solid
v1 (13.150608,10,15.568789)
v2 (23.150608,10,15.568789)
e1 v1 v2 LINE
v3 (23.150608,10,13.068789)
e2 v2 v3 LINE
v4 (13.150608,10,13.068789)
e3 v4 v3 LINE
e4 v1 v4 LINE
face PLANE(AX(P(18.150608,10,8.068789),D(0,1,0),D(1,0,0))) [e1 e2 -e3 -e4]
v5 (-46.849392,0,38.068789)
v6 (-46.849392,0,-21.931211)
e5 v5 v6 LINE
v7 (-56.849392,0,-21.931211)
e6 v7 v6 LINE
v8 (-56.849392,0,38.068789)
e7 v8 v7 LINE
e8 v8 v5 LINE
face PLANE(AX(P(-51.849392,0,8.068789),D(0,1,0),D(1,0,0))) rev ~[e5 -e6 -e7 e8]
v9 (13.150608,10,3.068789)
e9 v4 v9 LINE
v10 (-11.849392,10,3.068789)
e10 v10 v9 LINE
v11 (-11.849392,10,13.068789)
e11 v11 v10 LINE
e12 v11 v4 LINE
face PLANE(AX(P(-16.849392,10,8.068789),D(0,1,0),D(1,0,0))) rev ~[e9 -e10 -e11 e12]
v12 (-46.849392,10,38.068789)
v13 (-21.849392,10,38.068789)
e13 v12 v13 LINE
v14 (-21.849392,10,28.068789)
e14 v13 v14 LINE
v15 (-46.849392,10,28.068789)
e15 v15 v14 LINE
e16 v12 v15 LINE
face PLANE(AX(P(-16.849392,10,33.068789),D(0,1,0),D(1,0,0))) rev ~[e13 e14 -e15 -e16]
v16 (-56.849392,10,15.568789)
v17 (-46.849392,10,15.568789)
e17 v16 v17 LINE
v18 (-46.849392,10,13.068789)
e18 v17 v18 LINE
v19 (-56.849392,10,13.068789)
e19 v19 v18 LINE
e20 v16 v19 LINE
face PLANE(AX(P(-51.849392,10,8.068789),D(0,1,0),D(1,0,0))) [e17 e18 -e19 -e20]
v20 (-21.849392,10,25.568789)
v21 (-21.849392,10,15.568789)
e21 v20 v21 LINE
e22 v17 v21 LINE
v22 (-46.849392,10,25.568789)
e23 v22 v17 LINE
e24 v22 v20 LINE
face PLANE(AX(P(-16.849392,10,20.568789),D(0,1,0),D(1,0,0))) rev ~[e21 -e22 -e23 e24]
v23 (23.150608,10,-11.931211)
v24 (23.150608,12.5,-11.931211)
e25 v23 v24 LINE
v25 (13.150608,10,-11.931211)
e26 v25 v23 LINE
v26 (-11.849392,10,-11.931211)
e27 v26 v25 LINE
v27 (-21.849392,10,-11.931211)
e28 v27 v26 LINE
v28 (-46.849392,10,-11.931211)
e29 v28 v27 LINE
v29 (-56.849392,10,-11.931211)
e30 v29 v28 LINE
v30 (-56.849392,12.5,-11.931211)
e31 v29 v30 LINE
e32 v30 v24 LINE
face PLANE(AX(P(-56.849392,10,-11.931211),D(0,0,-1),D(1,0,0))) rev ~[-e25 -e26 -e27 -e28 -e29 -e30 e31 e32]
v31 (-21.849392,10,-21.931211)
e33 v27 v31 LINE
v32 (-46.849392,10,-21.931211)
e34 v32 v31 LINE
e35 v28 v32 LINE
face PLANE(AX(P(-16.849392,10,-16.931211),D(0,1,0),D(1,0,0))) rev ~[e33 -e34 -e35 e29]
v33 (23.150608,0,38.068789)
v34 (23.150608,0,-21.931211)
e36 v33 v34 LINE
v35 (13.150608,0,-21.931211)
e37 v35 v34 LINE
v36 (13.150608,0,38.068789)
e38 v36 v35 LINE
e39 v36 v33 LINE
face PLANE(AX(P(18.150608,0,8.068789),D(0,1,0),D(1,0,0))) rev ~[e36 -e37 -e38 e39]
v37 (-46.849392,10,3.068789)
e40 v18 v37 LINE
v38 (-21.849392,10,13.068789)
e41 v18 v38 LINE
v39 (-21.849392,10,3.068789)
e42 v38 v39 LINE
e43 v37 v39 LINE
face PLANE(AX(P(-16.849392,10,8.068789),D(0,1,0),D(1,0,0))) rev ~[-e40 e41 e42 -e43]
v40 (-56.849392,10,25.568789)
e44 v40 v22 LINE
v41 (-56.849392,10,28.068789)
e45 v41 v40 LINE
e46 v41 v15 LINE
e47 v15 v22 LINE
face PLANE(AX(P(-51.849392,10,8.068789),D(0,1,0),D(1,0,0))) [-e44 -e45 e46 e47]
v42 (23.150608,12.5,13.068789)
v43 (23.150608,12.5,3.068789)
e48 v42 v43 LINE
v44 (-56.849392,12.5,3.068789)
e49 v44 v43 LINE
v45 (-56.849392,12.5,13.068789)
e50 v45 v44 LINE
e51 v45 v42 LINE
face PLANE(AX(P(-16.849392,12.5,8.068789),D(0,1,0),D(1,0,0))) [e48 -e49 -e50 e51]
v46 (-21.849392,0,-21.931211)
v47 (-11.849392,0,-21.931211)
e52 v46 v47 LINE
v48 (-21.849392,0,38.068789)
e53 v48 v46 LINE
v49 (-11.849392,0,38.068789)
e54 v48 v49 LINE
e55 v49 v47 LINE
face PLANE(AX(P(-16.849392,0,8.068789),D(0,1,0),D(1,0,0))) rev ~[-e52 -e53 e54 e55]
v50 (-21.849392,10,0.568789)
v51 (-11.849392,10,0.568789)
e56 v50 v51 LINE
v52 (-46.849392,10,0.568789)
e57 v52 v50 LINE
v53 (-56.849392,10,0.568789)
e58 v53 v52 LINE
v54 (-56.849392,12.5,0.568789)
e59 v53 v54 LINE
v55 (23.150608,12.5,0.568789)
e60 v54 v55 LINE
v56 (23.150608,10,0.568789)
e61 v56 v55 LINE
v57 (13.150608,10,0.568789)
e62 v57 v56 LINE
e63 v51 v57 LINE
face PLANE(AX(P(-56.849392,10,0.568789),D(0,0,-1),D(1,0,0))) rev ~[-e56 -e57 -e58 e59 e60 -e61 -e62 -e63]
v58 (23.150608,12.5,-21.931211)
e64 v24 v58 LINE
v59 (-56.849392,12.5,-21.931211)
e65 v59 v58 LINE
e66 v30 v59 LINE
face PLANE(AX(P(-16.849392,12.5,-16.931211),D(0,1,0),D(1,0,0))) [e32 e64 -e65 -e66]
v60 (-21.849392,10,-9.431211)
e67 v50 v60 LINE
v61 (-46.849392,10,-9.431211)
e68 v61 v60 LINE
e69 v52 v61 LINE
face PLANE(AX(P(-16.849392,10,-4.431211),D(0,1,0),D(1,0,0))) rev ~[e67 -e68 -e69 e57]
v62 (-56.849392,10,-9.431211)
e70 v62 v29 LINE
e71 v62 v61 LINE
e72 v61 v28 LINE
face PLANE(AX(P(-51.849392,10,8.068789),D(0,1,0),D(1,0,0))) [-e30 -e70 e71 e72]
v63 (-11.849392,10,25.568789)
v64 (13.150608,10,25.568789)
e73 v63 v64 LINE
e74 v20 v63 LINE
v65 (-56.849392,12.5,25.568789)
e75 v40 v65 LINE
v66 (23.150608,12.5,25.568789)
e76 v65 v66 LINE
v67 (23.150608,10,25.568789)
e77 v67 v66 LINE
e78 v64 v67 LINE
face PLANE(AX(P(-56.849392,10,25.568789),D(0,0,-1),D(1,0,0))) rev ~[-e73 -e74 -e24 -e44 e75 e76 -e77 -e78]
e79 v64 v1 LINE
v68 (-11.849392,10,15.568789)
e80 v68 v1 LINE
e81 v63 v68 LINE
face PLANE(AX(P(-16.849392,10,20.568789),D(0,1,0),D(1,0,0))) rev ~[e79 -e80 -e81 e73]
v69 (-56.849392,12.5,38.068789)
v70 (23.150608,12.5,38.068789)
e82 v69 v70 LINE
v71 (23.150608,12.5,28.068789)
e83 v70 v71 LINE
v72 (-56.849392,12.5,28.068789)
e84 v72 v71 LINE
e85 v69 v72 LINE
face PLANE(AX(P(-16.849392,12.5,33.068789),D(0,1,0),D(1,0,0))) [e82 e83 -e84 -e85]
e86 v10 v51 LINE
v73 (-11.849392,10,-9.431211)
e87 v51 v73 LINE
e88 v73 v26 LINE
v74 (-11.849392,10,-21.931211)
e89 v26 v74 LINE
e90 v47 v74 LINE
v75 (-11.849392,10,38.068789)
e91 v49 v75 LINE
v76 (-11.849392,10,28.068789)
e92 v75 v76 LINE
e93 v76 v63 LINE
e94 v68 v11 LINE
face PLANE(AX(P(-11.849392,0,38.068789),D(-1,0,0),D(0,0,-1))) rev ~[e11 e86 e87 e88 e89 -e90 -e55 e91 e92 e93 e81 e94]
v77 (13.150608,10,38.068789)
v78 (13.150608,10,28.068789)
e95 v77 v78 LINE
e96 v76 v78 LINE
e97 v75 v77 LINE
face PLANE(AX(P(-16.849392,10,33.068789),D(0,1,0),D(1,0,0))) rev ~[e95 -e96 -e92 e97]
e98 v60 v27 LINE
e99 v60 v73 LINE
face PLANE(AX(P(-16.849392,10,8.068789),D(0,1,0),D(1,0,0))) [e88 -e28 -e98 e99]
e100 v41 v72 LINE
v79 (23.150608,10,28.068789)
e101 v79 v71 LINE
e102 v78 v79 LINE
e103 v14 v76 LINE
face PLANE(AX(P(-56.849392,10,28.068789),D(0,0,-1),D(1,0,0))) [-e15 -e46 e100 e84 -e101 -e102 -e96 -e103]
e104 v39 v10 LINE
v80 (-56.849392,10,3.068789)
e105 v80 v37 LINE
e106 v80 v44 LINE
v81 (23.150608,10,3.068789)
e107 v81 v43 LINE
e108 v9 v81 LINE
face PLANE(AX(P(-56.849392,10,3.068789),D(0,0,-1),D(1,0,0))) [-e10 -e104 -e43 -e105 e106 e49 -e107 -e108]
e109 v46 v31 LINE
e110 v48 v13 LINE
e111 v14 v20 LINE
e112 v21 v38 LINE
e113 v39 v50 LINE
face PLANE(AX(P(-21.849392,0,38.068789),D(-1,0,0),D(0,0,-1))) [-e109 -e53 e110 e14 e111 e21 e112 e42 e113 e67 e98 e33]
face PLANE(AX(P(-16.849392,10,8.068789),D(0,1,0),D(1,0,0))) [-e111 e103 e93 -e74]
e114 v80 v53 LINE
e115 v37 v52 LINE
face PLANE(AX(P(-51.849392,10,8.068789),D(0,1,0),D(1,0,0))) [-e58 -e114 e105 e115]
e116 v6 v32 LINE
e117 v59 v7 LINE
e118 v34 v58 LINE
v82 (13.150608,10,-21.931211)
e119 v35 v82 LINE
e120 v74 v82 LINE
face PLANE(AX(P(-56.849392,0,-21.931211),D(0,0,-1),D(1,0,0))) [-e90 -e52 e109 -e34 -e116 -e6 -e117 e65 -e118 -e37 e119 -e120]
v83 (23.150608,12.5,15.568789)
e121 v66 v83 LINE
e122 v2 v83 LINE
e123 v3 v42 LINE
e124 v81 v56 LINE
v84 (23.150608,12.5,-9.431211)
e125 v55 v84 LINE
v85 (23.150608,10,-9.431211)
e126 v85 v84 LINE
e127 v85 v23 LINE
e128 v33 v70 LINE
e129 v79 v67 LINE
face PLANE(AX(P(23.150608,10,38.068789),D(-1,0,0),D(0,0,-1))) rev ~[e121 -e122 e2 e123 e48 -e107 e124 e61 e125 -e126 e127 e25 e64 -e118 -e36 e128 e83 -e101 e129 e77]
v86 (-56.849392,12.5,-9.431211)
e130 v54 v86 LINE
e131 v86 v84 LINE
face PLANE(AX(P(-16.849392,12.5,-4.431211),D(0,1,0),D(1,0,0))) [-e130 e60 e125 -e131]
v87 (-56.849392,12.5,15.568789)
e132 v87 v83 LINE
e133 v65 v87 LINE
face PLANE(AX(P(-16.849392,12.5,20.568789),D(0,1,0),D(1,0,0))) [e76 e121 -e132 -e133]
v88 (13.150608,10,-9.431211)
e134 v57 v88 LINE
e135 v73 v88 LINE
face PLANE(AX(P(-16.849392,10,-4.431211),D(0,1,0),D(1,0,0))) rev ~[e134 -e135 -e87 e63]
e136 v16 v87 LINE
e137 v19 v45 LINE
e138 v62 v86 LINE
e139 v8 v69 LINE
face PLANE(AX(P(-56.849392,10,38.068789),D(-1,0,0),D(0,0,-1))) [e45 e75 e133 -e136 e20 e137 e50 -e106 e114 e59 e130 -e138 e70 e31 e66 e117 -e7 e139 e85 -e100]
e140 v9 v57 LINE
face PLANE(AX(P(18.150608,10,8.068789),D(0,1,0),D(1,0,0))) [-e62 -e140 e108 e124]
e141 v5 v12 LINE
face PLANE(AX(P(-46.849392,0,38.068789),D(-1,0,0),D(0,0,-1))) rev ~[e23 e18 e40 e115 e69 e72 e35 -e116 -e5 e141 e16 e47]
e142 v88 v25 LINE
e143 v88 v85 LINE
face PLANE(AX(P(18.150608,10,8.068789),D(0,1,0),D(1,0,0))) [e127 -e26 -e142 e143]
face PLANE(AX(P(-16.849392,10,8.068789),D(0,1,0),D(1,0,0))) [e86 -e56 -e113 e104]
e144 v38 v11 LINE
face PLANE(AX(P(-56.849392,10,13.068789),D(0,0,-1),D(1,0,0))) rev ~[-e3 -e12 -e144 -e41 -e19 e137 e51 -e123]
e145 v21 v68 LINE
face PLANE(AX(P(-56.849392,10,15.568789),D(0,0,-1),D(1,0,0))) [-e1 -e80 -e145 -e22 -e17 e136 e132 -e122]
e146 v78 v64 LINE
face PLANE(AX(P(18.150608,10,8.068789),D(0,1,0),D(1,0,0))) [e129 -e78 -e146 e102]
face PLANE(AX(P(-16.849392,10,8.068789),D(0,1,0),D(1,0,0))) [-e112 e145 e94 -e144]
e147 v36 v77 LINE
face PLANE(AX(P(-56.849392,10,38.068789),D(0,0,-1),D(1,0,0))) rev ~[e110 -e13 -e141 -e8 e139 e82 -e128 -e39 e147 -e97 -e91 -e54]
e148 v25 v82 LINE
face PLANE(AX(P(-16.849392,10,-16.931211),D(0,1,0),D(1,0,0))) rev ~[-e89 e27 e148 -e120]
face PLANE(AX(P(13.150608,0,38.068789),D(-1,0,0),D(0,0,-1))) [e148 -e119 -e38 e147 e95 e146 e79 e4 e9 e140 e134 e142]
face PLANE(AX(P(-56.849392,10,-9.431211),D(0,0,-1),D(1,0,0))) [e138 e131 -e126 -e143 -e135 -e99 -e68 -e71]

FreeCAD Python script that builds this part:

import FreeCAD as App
import Part
import Sketcher
Q = App.Units.Quantity


def add_polygon(sketch, points):
    """Adds a closed chain of lines whose ends are joined by coincident constraints."""
    first, n = sketch.GeometryCount, len(points)
    for a, b in zip(points, points[1:] + points[:1]):
        sketch.addGeometry(Part.LineSegment(App.Vector(*a, 0), App.Vector(*b, 0)), False)
    for i in range(n):
        sketch.addConstraint(Sketcher.Constraint("Coincident", first + i, 2, first + (i + 1) % n, 1))

doc = App.newDocument("Part")
body = doc.addObject("PartDesign::Body", "Body")

sketch1 = body.newObject("Sketcher::SketchObject", "Sketch")
sketch1.AttachmentSupport = (doc.getObject("XZ_Plane"), [""])
sketch1.MapMode = "FlatFace"
add_polygon(sketch1, [(-57, -22), (-57, 38), (-47, 38), (-47, -22)])
sketch1.addConstraint([
    Sketcher.Constraint("Vertical", 0),
    Sketcher.Constraint("Horizontal", 1),
    Sketcher.Constraint("Vertical", 2),
    Sketcher.Constraint("Horizontal", 3),
    Sketcher.Constraint("DistanceX", 1, 1, 1, 2, Q("10 mm")),
    Sketcher.Constraint("DistanceY", 0, 1, 0, 2, Q("60 mm")),
    Sketcher.Constraint("DistanceX", 0, 2, -1, 1, Q("56.849392 mm")),
    Sketcher.Constraint("DistanceY", -1, 1, 0, 2, Q("38.068789 mm")),
])
pad1 = body.newObject("PartDesign::Pad", "Pad")
pad1.Profile = sketch1
pad1.Length = 10
pad1.Reversed = True
body2 = doc.addObject("PartDesign::Body", "Body001")

sketch2 = body2.newObject("Sketcher::SketchObject", "Sketch001")
sketch2.AttachmentSupport = (doc.getObject("XZ_Plane001"), [""])
sketch2.MapMode = "FlatFace"
add_polygon(sketch2, [(-22, -22), (-22, 38), (-12, 38), (-12, -22)])
sketch2.addConstraint([
    Sketcher.Constraint("Vertical", 0),
    Sketcher.Constraint("Horizontal", 1),
    Sketcher.Constraint("Vertical", 2),
    Sketcher.Constraint("Horizontal", 3),
    Sketcher.Constraint("DistanceX", 1, 1, 1, 2, Q("10 mm")),
    Sketcher.Constraint("DistanceY", 0, 1, 0, 2, Q("60 mm")),
    Sketcher.Constraint("DistanceX", 0, 2, -1, 1, Q("21.849392 mm")),
    Sketcher.Constraint("DistanceY", -1, 1, 0, 2, Q("38.068789 mm")),
])
pad2 = body2.newObject("PartDesign::Pad", "Pad001")
pad2.Profile = sketch2
pad2.Length = 10
pad2.Reversed = True
body3 = doc.addObject("PartDesign::Body", "Body002")

sketch3 = body3.newObject("Sketcher::SketchObject", "Sketch002")
sketch3.AttachmentSupport = (doc.getObject("XZ_Plane002"), [""])
sketch3.MapMode = "FlatFace"
add_polygon(sketch3, [(13, -22), (13, 38), (23, 38), (23, -22)])
sketch3.addConstraint([
    Sketcher.Constraint("Vertical", 0),
    Sketcher.Constraint("Horizontal", 1),
    Sketcher.Constraint("Vertical", 2),
    Sketcher.Constraint("Horizontal", 3),
    Sketcher.Constraint("DistanceX", 1, 1, 1, 2, Q("10 mm")),
    Sketcher.Constraint("DistanceY", 0, 1, 0, 2, Q("60 mm")),
    Sketcher.Constraint("DistanceX", -1, 1, 0, 2, Q("13.150608 mm")),
    Sketcher.Constraint("DistanceY", -1, 1, 0, 2, Q("38.068789 mm")),
])
pad3 = body3.newObject("PartDesign::Pad", "Pad002")
pad3.Profile = sketch3
pad3.Length = 10
pad3.Reversed = True
body.AllowCompound = True
doc.recompute()

boolean = body.newObject("PartDesign::Boolean", "Boolean")
boolean.Type = "Fuse"
boolean.addObjects([body2])
doc.recompute()

boolean2 = body.newObject("PartDesign::Boolean", "Boolean001")
boolean2.Type = "Fuse"
boolean2.addObjects([body3])

sketch4 = body.newObject("Sketcher::SketchObject", "Sketch003")
sketch4.AttachmentSupport = (doc.getObject("XZ_Plane"), [""])
sketch4.MapMode = "FlatFace"
sketch4.AttachmentOffset = App.Placement(App.Vector(0, 0, -10), App.Rotation())
add_polygon(sketch4, [(-57, 28), (-57, 38), (23, 38), (23, 28)])
add_polygon(sketch4, [(-57, -22), (-57, -12), (23, -12), (23, -22)])
add_polygon(sketch4, [(-57, -9), (-57, 1), (23, 1), (23, -9)])
add_polygon(sketch4, [(-57, 16), (-57, 26), (23, 26), (23, 16)])
add_polygon(sketch4, [(-57, 3), (-57, 13), (23, 13), (23, 3)])
sketch4.addConstraint([
    Sketcher.Constraint("Vertical", 0),
    Sketcher.Constraint("Horizontal", 1),
    Sketcher.Constraint("Vertical", 2),
    Sketcher.Constraint("Horizontal", 3),
    Sketcher.Constraint("Vertical", 4),
    Sketcher.Constraint("Horizontal", 5),
    Sketcher.Constraint("Vertical", 6),
    Sketcher.Constraint("Horizontal", 7),
    Sketcher.Constraint("Vertical", 8),
    Sketcher.Constraint("Horizontal", 9),
    Sketcher.Constraint("Vertical", 10),
    Sketcher.Constraint("Horizontal", 11),
    Sketcher.Constraint("Vertical", 12),
    Sketcher.Constraint("Horizontal", 13),
    Sketcher.Constraint("Vertical", 14),
    Sketcher.Constraint("Horizontal", 15),
    Sketcher.Constraint("Vertical", 16),
    Sketcher.Constraint("Horizontal", 17),
    Sketcher.Constraint("Vertical", 18),
    Sketcher.Constraint("Horizontal", 19),
    Sketcher.Constraint("Vertical", 3, 2, 4, 2),
    Sketcher.Constraint("Vertical", 2, 2, 5, 2),
    Sketcher.Constraint("Vertical", 7, 2, 8, 2),
    Sketcher.Constraint("Vertical", 6, 2, 9, 2),
    Sketcher.Constraint("Vertical", 11, 2, 12, 2),
    Sketcher.Constraint("Vertical", 10, 2, 13, 2),
    Sketcher.Constraint("Vertical", 15, 2, 16, 2),
    Sketcher.Constraint("Vertical", 14, 2, 17, 2),
    Sketcher.Constraint("Equal", 2, 4),
    Sketcher.Constraint("Equal", 6, 8),
    Sketcher.Constraint("Equal", 10, 12),
    Sketcher.Constraint("Equal", 14, 16),
    Sketcher.Constraint("DistanceX", 1, 1, 1, 2, Q("80 mm")),
    Sketcher.Constraint("DistanceY", 0, 1, 0, 2, Q("10 mm")),
    Sketcher.Constraint("DistanceY", 4, 2, 3, 2, Q("40 mm")),
    Sketcher.Constraint("DistanceY", 8, 2, 12, 2, Q("25 mm")),
    Sketcher.Constraint("DistanceY", 16, 2, 3, 2, Q("15 mm")),
    Sketcher.Constraint("DistanceY", 4, 2, 8, 2, Q("12.5 mm")),
    Sketcher.Constraint("DistanceX", 0, 2, -1, 1, Q("56.849392 mm")),
    Sketcher.Constraint("DistanceY", -1, 1, 0, 2, Q("38.068789 mm")),
])
pad4 = body.newObject("PartDesign::Pad", "Pad003")
pad4.Profile = sketch4
pad4.Length = 2.5
pad4.Reversed = True

doc.recompute()
